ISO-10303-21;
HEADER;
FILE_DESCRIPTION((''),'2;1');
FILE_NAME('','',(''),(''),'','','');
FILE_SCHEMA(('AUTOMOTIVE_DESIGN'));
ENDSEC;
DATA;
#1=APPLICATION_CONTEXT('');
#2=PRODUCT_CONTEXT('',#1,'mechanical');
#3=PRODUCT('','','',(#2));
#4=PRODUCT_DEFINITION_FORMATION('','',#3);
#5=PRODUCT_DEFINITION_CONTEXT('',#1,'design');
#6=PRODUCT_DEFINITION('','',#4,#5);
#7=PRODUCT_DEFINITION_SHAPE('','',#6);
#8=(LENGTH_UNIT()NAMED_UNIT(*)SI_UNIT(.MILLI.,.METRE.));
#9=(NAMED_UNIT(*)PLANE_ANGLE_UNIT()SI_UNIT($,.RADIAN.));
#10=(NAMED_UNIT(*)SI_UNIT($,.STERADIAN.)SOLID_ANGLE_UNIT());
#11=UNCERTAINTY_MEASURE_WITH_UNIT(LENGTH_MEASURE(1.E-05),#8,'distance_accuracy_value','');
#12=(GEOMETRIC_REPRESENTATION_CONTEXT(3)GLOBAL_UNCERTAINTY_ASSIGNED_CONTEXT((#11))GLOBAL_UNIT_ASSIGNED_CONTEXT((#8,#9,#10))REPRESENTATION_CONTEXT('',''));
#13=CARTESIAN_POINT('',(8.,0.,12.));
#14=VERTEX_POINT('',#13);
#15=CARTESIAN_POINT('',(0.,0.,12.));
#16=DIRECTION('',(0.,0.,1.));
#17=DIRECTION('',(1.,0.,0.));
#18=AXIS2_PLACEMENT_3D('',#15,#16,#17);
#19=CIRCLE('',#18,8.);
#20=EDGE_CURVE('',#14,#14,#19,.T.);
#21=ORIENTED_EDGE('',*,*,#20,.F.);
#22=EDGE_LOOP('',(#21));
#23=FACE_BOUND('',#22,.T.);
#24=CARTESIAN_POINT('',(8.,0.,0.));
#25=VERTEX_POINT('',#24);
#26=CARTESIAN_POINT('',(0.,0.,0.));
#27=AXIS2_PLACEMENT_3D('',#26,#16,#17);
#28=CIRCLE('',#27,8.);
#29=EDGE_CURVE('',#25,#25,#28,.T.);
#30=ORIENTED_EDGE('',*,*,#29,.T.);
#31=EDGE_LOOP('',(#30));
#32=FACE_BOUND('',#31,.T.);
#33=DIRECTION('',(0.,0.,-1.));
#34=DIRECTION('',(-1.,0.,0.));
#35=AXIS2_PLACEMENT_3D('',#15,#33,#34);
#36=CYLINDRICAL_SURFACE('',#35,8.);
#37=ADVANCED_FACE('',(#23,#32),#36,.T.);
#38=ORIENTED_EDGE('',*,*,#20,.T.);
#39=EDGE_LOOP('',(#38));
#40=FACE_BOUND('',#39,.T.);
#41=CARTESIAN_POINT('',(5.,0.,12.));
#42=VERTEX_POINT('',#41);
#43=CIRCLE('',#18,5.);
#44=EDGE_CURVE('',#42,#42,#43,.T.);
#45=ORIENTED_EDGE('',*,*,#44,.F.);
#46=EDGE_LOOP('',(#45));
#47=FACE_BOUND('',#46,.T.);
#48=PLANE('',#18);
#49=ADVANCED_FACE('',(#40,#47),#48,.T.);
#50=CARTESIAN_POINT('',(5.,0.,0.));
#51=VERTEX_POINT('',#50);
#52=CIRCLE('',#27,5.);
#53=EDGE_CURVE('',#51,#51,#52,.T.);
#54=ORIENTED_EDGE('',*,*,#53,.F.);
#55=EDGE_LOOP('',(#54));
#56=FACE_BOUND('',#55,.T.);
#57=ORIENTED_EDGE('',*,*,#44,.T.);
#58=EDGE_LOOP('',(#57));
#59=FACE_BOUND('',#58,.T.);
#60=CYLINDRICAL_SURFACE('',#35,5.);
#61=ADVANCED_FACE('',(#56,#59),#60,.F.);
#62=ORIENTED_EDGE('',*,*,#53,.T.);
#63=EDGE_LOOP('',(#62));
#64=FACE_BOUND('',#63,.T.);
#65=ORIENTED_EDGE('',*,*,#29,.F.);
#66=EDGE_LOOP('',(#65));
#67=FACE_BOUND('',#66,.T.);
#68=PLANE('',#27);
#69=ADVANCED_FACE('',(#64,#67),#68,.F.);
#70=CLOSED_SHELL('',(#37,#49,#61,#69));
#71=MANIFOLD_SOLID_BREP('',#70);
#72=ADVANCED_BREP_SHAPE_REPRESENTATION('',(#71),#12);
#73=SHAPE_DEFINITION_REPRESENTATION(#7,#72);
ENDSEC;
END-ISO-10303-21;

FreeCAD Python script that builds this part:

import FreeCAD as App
import Part
import Sketcher
from FreeCAD import Vector
Q = App.Units.Quantity

doc = App.newDocument("Part")
body = doc.addObject("PartDesign::Body", "Body")

sketch1 = body.newObject("Sketcher::SketchObject", "Sketch")
sketch1.AttachmentSupport = (doc.getObject("XY_Plane"), [""])
sketch1.MapMode = "FlatFace"
sketch1.addGeometry(Part.Circle(Vector(0, 0, 0), Vector(0, 0, 1), 8), False)
sketch1.addGeometry(Part.Circle(Vector(0, 0, 0), Vector(0, 0, 1), 5), False)
sketch1.addConstraint(Sketcher.Constraint("Coincident", 0, 3, -1, 1))
sketch1.addConstraint(Sketcher.Constraint("Coincident", 1, 3, -1, 1))
sketch1.addConstraint(Sketcher.Constraint("Diameter", 0, Q("16 mm")))
sketch1.addConstraint(Sketcher.Constraint("Diameter", 1, Q("10 mm")))
pad1 = body.newObject("PartDesign::Pad", "Pad")
pad1.Profile = sketch1
pad1.Length = 12

doc.recompute()
